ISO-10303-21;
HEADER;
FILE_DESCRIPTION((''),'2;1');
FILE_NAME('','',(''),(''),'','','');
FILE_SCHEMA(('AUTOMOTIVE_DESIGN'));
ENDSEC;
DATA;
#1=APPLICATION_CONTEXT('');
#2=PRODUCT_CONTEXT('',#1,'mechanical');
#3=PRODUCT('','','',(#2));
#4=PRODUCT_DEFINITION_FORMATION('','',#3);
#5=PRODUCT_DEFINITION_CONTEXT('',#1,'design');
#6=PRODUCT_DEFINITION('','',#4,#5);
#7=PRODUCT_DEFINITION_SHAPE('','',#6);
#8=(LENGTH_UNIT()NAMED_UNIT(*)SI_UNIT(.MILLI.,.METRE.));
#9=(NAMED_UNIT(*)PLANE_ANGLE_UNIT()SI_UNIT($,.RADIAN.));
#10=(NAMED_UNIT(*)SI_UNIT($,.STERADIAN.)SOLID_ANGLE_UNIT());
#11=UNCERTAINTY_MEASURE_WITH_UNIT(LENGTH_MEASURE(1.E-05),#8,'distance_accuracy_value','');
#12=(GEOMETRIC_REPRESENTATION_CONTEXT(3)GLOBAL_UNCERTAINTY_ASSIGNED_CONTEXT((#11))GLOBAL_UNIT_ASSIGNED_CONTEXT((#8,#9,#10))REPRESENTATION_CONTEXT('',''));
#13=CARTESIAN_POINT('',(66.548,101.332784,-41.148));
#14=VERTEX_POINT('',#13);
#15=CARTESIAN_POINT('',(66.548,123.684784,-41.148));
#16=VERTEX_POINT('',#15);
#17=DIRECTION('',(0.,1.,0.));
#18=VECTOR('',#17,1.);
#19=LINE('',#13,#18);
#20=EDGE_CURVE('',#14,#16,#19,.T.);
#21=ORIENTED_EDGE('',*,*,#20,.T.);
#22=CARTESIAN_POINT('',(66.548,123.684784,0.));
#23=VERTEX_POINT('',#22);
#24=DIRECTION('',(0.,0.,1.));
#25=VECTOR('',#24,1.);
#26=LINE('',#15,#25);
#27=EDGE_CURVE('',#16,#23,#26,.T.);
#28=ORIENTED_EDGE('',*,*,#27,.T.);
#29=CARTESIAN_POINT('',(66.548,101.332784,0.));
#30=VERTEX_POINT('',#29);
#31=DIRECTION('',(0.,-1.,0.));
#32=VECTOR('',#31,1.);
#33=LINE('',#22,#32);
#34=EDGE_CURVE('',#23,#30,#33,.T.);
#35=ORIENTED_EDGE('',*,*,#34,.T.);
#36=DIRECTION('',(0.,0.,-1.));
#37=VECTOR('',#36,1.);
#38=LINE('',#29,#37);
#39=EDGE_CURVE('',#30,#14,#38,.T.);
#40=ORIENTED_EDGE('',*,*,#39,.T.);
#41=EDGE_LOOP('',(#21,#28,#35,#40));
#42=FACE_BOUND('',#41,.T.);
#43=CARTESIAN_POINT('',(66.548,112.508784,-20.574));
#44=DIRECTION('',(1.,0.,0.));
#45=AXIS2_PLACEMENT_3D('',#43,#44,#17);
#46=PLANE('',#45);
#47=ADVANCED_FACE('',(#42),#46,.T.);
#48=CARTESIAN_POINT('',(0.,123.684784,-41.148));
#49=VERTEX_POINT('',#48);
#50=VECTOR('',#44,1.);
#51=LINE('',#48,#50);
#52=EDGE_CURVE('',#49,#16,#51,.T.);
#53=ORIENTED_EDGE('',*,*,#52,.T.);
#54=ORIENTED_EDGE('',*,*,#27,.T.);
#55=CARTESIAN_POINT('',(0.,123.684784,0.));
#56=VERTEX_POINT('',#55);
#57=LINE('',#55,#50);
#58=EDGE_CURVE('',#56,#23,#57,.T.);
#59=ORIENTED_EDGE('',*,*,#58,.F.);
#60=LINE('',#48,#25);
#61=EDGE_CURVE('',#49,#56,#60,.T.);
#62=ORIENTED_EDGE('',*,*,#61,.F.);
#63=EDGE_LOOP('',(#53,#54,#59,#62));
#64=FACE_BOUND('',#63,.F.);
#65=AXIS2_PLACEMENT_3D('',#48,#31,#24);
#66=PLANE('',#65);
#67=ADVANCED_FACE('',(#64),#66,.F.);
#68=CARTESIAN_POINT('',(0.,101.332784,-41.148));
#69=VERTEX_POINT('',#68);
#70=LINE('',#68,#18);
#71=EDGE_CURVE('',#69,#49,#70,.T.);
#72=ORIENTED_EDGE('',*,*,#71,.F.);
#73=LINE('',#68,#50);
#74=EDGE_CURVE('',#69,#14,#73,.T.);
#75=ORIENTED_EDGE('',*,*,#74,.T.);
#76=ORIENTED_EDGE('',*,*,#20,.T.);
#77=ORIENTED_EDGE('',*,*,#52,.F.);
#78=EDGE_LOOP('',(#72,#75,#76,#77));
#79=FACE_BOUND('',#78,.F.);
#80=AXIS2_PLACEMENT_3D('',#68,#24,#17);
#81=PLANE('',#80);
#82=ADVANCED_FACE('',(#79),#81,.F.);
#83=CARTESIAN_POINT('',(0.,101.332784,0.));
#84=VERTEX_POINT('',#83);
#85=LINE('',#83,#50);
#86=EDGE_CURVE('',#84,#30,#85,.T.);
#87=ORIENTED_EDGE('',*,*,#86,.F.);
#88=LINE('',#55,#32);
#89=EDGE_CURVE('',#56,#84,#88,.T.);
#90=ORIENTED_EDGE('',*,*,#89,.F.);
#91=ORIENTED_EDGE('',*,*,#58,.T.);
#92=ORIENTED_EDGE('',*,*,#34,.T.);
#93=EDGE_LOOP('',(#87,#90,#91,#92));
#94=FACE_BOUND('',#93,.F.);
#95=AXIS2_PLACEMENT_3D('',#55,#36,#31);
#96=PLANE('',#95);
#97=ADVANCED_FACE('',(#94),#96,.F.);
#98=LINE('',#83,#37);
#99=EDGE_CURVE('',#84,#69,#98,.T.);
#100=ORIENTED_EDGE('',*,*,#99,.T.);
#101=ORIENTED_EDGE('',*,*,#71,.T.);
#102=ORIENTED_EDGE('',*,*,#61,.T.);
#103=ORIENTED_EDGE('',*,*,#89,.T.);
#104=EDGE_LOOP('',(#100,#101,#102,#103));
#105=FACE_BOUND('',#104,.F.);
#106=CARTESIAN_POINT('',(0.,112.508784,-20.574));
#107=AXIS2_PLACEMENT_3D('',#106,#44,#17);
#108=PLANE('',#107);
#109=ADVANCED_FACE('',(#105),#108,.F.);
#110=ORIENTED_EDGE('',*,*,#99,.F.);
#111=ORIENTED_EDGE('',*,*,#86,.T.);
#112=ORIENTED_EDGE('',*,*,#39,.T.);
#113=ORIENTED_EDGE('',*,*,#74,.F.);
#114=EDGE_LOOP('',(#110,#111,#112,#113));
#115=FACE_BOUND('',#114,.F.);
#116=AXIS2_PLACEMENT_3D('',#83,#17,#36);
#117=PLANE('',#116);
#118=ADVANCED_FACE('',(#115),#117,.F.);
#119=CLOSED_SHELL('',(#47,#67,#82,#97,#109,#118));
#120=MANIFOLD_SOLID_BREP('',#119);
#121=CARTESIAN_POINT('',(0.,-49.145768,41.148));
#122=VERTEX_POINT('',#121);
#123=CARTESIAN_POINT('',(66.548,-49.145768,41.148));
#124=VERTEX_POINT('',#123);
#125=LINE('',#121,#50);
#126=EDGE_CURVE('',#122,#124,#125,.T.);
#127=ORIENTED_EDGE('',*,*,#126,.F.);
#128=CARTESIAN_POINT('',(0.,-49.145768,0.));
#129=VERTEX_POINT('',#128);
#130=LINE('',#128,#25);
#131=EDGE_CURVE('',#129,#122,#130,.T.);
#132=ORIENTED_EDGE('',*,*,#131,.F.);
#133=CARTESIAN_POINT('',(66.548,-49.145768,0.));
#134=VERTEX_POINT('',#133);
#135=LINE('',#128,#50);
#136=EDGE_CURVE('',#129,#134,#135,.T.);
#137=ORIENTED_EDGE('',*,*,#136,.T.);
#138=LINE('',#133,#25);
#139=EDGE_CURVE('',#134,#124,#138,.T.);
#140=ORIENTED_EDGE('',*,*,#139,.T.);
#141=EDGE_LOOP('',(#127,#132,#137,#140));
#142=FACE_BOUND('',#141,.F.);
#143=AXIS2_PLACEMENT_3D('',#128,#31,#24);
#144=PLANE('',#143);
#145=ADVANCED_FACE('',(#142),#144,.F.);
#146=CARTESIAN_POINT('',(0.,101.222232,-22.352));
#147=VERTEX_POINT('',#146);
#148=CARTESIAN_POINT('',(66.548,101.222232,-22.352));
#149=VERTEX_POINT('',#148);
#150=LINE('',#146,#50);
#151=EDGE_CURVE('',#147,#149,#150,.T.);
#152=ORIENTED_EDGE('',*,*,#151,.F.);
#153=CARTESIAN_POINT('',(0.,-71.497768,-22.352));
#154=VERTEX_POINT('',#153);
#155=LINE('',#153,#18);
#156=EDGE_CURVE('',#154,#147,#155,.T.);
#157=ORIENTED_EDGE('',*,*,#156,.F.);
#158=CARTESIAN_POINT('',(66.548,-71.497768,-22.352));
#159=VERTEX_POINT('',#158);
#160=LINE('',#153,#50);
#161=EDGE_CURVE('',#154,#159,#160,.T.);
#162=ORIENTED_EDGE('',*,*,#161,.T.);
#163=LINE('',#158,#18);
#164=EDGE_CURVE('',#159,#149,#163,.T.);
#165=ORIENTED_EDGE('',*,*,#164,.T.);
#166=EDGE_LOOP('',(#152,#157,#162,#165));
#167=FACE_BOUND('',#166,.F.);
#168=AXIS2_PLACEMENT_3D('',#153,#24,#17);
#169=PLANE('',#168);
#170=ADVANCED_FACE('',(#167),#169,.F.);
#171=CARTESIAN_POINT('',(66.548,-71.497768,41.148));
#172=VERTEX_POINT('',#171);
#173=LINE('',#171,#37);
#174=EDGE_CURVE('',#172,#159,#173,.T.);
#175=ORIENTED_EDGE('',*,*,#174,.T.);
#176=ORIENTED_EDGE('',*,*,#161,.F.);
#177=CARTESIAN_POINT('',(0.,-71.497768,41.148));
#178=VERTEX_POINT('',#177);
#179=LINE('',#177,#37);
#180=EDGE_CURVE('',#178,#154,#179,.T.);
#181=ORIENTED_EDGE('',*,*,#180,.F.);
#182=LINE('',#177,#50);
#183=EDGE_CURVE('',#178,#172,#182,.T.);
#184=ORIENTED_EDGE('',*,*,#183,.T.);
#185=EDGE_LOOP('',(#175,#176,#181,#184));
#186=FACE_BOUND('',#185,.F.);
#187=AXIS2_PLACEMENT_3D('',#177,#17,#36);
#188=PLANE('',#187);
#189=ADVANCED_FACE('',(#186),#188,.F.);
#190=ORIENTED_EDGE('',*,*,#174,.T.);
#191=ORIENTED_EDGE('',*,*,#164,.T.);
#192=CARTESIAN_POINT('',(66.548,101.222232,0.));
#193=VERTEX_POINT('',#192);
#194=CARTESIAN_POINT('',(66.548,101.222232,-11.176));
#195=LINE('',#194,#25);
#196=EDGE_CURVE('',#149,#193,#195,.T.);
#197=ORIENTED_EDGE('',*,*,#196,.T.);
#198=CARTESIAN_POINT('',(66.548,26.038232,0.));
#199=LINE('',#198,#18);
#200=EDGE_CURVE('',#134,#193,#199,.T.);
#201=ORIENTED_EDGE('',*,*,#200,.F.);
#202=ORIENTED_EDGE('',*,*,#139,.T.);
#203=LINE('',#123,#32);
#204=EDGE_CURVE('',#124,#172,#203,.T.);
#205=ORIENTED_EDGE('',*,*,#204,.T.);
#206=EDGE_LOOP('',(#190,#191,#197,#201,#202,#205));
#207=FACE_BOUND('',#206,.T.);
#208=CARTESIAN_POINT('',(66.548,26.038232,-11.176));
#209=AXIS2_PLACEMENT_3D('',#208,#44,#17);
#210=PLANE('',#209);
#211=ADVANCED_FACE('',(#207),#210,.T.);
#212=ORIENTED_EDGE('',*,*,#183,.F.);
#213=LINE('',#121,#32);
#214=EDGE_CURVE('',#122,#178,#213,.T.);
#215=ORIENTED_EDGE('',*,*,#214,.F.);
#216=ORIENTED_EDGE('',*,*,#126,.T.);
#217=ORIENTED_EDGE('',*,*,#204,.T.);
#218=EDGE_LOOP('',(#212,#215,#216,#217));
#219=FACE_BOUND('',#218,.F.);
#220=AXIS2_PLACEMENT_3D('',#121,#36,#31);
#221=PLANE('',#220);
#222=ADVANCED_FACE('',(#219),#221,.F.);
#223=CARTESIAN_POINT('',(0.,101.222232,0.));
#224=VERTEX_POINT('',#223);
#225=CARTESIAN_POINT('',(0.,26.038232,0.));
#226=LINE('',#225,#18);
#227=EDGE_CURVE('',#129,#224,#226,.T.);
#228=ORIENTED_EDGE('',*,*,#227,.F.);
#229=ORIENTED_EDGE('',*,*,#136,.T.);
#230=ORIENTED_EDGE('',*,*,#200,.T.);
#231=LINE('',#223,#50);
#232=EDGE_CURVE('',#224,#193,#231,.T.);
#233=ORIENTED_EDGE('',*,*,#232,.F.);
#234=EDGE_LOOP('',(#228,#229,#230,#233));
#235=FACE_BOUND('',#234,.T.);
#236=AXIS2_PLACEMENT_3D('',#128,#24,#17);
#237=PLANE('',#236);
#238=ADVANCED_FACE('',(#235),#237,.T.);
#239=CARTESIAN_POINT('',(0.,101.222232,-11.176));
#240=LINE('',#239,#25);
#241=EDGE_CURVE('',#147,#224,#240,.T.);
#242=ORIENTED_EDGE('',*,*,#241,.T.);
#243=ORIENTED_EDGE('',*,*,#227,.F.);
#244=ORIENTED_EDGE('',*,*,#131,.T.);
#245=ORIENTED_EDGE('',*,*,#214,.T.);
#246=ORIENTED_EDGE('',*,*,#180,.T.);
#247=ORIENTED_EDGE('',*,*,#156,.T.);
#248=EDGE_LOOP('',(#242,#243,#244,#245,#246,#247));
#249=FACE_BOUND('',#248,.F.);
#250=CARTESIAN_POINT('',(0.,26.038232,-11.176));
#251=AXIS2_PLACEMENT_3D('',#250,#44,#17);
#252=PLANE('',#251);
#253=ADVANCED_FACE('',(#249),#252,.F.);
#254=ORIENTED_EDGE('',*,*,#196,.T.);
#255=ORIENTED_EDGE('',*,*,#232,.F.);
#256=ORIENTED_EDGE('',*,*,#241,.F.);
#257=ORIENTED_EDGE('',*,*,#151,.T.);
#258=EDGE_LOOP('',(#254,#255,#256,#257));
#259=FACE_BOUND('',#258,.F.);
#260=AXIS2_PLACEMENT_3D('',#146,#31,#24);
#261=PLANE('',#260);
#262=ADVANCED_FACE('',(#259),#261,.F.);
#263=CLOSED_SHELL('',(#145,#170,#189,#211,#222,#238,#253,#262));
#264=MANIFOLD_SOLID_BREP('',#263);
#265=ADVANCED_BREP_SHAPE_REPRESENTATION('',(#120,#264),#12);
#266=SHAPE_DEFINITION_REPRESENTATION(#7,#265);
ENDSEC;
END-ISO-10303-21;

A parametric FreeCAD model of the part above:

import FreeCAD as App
import Part
import Sketcher
Q = App.Units.Quantity


def add_polygon(sketch, points):
    """Adds a closed chain of lines whose ends are joined by coincident constraints."""
    first, n = sketch.GeometryCount, len(points)
    for a, b in zip(points, points[1:] + points[:1]):
        sketch.addGeometry(Part.LineSegment(App.Vector(*a, 0), App.Vector(*b, 0)), False)
    for i in range(n):
        sketch.addConstraint(Sketcher.Constraint("Coincident", first + i, 2, first + (i + 1) % n, 1))

doc = App.newDocument("Part")
body = doc.addObject("PartDesign::Body", "Body")
body.AllowCompound = True

# Sketch on YZ plane
sketch1 = body.newObject("Sketcher::SketchObject", "Sketch")
sketch1.AttachmentSupport = (doc.getObject("YZ_Plane"), [""])
sketch1.MapMode = "FlatFace"
add_polygon(sketch1, [(101, -22), (101, 0), (-49, 0), (-49, 41), (-71, 41), (-71, -22)])  # lines 0-5
add_polygon(sketch1, [(101, 0), (101, -41), (124, -41), (124, 0)])  # lines 6-9
sketch1.addConstraint(Sketcher.Constraint("Vertical", 0))
sketch1.addConstraint(Sketcher.Constraint("Horizontal", 1))
sketch1.addConstraint(Sketcher.Constraint("Vertical", 2))
sketch1.addConstraint(Sketcher.Constraint("Horizontal", 3))
sketch1.addConstraint(Sketcher.Constraint("Vertical", 4))
sketch1.addConstraint(Sketcher.Constraint("Horizontal", 5))
sketch1.addConstraint(Sketcher.Constraint("Vertical", 6))
sketch1.addConstraint(Sketcher.Constraint("Horizontal", 7))
sketch1.addConstraint(Sketcher.Constraint("Vertical", 8))
sketch1.addConstraint(Sketcher.Constraint("Horizontal", 9))
sketch1.addConstraint(Sketcher.Constraint("PointOnObject", 0, 2, -1))
sketch1.addConstraint(Sketcher.Constraint("PointOnObject", 8, 2, -1))
sketch1.addConstraint(Sketcher.Constraint("Equal", 3, 7))
sketch1.addConstraint(Sketcher.Constraint("Equal", 9, 0))
sketch1.addConstraint(Sketcher.Constraint("Equal", 2, 6))
sketch1.addConstraint(Sketcher.Constraint("DistanceX", 5, 1, 5, 2, Q("6.8 in")))
sketch1.addConstraint(Sketcher.Constraint("DistanceY", 4, 2, 4, 1, Q("2.5 in")))
sketch1.addConstraint(Sketcher.Constraint("DistanceX", 1, 2, 1, 1, Q("5.92 in")))
sketch1.addConstraint(Sketcher.Constraint("DistanceX", 5, 2, 6, 2, Q("0.110552 mm")))
sketch1.addConstraint(Sketcher.Constraint("DistanceX", -1, 1, 0, 2, Q("101.222232 mm")))
pad1 = body.newObject("PartDesign::Pad", "Pad")
pad1.Profile = sketch1
pad1.Length = Q("2.62 in")

doc.recompute()
